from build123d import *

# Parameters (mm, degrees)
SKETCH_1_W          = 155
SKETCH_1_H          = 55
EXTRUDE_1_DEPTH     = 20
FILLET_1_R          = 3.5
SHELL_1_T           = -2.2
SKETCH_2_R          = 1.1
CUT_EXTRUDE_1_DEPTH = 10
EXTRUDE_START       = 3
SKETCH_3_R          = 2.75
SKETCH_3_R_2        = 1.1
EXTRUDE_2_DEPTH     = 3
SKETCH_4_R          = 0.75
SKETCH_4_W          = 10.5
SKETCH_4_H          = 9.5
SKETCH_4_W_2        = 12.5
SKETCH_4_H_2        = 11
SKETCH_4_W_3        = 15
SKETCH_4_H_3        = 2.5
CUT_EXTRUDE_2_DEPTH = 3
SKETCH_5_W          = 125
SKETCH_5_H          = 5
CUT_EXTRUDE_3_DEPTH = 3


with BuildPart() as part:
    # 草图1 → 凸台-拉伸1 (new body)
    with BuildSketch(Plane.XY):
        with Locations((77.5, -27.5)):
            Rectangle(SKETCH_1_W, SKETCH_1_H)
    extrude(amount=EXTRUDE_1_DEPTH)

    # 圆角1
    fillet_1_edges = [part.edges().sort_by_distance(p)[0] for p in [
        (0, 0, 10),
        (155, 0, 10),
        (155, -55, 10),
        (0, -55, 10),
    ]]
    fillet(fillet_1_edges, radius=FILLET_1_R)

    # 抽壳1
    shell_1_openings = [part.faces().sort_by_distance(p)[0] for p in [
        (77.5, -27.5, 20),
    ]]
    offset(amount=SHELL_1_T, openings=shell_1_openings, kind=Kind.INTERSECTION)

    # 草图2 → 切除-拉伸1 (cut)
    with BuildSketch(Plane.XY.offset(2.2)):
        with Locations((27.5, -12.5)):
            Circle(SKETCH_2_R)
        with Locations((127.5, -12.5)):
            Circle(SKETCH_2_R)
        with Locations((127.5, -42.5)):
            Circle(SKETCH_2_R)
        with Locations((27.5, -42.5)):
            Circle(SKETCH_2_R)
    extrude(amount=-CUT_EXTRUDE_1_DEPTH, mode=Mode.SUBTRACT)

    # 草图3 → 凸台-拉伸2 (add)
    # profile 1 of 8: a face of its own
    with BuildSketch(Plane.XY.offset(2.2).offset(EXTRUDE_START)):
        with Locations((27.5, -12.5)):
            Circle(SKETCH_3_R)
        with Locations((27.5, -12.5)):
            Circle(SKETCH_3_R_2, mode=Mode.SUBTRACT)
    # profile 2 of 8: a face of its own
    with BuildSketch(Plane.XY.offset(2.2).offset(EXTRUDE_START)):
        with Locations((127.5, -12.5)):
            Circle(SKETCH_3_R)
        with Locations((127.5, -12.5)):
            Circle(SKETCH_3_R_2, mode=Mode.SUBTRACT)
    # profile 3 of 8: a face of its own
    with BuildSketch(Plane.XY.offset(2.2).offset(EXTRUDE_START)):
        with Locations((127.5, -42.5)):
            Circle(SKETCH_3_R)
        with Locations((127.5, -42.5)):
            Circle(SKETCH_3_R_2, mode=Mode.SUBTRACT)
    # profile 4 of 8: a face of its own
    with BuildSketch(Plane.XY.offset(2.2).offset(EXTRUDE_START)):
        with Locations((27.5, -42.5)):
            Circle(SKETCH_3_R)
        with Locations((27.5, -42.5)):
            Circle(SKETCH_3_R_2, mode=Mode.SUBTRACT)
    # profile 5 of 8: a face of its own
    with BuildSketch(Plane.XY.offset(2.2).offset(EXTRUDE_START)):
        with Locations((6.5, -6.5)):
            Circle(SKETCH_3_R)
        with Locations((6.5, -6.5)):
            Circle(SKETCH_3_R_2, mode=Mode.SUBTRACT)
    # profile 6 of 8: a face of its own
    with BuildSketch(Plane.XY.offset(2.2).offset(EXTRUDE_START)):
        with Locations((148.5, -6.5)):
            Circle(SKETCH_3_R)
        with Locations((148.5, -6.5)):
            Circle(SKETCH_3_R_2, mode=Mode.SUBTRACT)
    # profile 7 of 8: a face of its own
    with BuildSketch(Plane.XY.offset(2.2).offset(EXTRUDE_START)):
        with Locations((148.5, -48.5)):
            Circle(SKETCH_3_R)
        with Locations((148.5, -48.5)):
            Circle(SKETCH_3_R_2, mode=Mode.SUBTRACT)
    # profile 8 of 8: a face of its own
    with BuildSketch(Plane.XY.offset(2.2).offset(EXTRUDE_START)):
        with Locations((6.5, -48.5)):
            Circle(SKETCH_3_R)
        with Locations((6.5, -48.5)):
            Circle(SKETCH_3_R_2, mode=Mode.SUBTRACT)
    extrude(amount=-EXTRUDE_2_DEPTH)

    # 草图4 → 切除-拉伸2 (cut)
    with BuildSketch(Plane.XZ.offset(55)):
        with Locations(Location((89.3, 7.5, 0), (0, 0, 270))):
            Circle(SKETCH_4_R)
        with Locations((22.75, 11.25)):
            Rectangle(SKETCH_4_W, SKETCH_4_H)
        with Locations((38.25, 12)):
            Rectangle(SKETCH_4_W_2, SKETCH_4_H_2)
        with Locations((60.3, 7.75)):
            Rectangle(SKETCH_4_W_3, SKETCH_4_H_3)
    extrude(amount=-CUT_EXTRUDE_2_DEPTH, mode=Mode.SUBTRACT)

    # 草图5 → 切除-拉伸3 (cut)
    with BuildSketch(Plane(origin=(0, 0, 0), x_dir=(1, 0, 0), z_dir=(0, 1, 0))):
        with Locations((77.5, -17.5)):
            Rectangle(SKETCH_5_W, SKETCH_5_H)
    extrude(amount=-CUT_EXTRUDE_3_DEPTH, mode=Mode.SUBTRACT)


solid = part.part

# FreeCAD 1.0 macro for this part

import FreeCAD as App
import Part
import Sketcher


def edges_at(feature, points):
    """Names of the edges that pass closest to the given points."""
    edges = feature.Shape.Edges
    near = lambda p: min(range(len(edges)), key=lambda i: edges[i].distToShape(Part.Vertex(*p))[0])
    return sorted({f"Edge{near(p) + 1}" for p in points})


def faces_at(feature, points):
    """Names of the faces that lie closest to the given points."""
    faces = feature.Shape.Faces
    near = lambda p: min(range(len(faces)), key=lambda i: faces[i].distToShape(Part.Vertex(*p))[0])
    return sorted({f"Face{near(p) + 1}" for p in points})


def add_polygon(sketch, points):
    """Adds a closed chain of lines whose ends are joined by coincident constraints."""
    first, n = sketch.GeometryCount, len(points)
    for a, b in zip(points, points[1:] + points[:1]):
        sketch.addGeometry(Part.LineSegment(App.Vector(*a, 0), App.Vector(*b, 0)), False)
    for i in range(n):
        sketch.addConstraint(Sketcher.Constraint("Coincident", first + i, 2, first + (i + 1) % n, 1))

doc = App.newDocument("Part")
body = doc.addObject("PartDesign::Body", "Body")

# Sketch on XY plane
sketch1 = body.newObject("Sketcher::SketchObject", "Sketch")
sketch1.AttachmentSupport = (doc.getObject("XY_Plane"), [""])
sketch1.MapMode = "FlatFace"
add_polygon(sketch1, [(0, 0), (0, -55), (155, -55), (155, 0)])  # lines 0-3
sketch1.addConstraint(Sketcher.Constraint("Vertical", 0))
sketch1.addConstraint(Sketcher.Constraint("Horizontal", 1))
sketch1.addConstraint(Sketcher.Constraint("Vertical", 2))
sketch1.addConstraint(Sketcher.Constraint("Horizontal", 3))
sketch1.addConstraint(Sketcher.Constraint("Coincident", 3, 2, -1, 1))
sketch1.addConstraint(Sketcher.Constraint("DistanceX", 1, 1, 1, 2, 155.0))
sketch1.addConstraint(Sketcher.Constraint("DistanceY", 0, 2, 0, 1, 55.0))
pad1 = body.newObject("PartDesign::Pad", "Pad")
pad1.Profile = sketch1
pad1.Length = 20
doc.recompute()

fillet = body.newObject("PartDesign::Fillet", "Fillet")
fillet.Base = (pad1, edges_at(pad1, [
    (0, 0, 10),
    (155, 0, 10),
    (155, -55, 10),
    (0, -55, 10),
]))
fillet.Radius = 3.5
doc.recompute()

thickness = body.newObject("PartDesign::Thickness", "Thickness")
thickness.Base = (fillet, faces_at(fillet, [(77.5, -27.5, 20)]))
thickness.Value = 2.2
thickness.Reversed = True
thickness.Join = "Intersection"

# Sketch on XY plane
sketch2 = body.newObject("Sketcher::SketchObject", "Sketch001")
sketch2.AttachmentSupport = (doc.getObject("XY_Plane"), [""])
sketch2.MapMode = "FlatFace"
sketch2.AttachmentOffset = App.Placement(App.Vector(0, 0, 2.2), App.Rotation())
sketch2.addGeometry(Part.Circle(App.Vector(27.5, -12.5, 0), App.Vector(0, 0, 1), 1.1), False)
sketch2.addGeometry(Part.Circle(App.Vector(127.5, -12.5, 0), App.Vector(0, 0, 1), 1.1), False)
sketch2.addGeometry(Part.Circle(App.Vector(127.5, -42.5, 0), App.Vector(0, 0, 1), 1.1), False)
sketch2.addGeometry(Part.Circle(App.Vector(27.5, -42.5, 0), App.Vector(0, 0, 1), 1.1), False)
sketch2.addConstraint(Sketcher.Constraint("Equal", 0, 1))
sketch2.addConstraint(Sketcher.Constraint("Equal", 1, 2))
sketch2.addConstraint(Sketcher.Constraint("Equal", 2, 3))
sketch2.addConstraint(Sketcher.Constraint("Horizontal", 0, 3, 1, 3))
sketch2.addConstraint(Sketcher.Constraint("Horizontal", 2, 3, 3, 3))
sketch2.addConstraint(Sketcher.Constraint("Vertical", 1, 3, 2, 3))
sketch2.addConstraint(Sketcher.Constraint("Vertical", 0, 3, 3, 3))
sketch2.addConstraint(Sketcher.Constraint("Diameter", 0, 2.2))
sketch2.addConstraint(Sketcher.Constraint("DistanceX", 0, 3, 1, 3, 100.0))
sketch2.addConstraint(Sketcher.Constraint("DistanceY", 2, 3, 1, 3, 30.0))
sketch2.addConstraint(Sketcher.Constraint("DistanceX", -1, 1, 0, 3, 27.5))
sketch2.addConstraint(Sketcher.Constraint("DistanceY", 0, 3, -1, 1, 12.5))
pocket1 = body.newObject("PartDesign::Pocket", "Pocket")
pocket1.Profile = sketch2
pocket1.Length = 10

# Sketch on XY plane
sketch3 = body.newObject("Sketcher::SketchObject", "Sketch002")
sketch3.AttachmentSupport = (doc.getObject("XY_Plane"), [""])
sketch3.MapMode = "FlatFace"
sketch3.AttachmentOffset = App.Placement(App.Vector(0, 0, 5.2), App.Rotation())
sketch3.addGeometry(Part.Circle(App.Vector(27.5, -12.5, 0), App.Vector(0, 0, 1), 2.75), False)
sketch3.addGeometry(Part.Circle(App.Vector(27.5, -12.5, 0), App.Vector(0, 0, 1), 1.1), False)
sketch3.addGeometry(Part.Circle(App.Vector(127.5, -12.5, 0), App.Vector(0, 0, 1), 2.75), False)
sketch3.addGeometry(Part.Circle(App.Vector(127.5, -12.5, 0), App.Vector(0, 0, 1), 1.1), False)
sketch3.addGeometry(Part.Circle(App.Vector(127.5, -42.5, 0), App.Vector(0, 0, 1), 2.75), False)
sketch3.addGeometry(Part.Circle(App.Vector(127.5, -42.5, 0), App.Vector(0, 0, 1), 1.1), False)
sketch3.addGeometry(Part.Circle(App.Vector(27.5, -42.5, 0), App.Vector(0, 0, 1), 2.75), False)
sketch3.addGeometry(Part.Circle(App.Vector(27.5, -42.5, 0), App.Vector(0, 0, 1), 1.1), False)
sketch3.addGeometry(Part.Circle(App.Vector(6.5, -6.5, 0), App.Vector(0, 0, 1), 2.75), False)
sketch3.addGeometry(Part.Circle(App.Vector(6.5, -6.5, 0), App.Vector(0, 0, 1), 1.1), False)
sketch3.addGeometry(Part.Circle(App.Vector(148.5, -6.5, 0), App.Vector(0, 0, 1), 2.75), False)
sketch3.addGeometry(Part.Circle(App.Vector(148.5, -6.5, 0), App.Vector(0, 0, 1), 1.1), False)
sketch3.addGeometry(Part.Circle(App.Vector(148.5, -48.5, 0), App.Vector(0, 0, 1), 2.75), False)
sketch3.addGeometry(Part.Circle(App.Vector(148.5, -48.5, 0), App.Vector(0, 0, 1), 1.1), False)
sketch3.addGeometry(Part.Circle(App.Vector(6.5, -48.5, 0), App.Vector(0, 0, 1), 2.75), False)
sketch3.addGeometry(Part.Circle(App.Vector(6.5, -48.5, 0), App.Vector(0, 0, 1), 1.1), False)
sketch3.addConstraint(Sketcher.Constraint("Coincident", 1, 3, 0, 3))
sketch3.addConstraint(Sketcher.Constraint("Coincident", 3, 3, 2, 3))
sketch3.addConstraint(Sketcher.Constraint("Coincident", 5, 3, 4, 3))
sketch3.addConstraint(Sketcher.Constraint("Coincident", 7, 3, 6, 3))
sketch3.addConstraint(Sketcher.Constraint("Coincident", 9, 3, 8, 3))
sketch3.addConstraint(Sketcher.Constraint("Coincident", 11, 3, 10, 3))
sketch3.addConstraint(Sketcher.Constraint("Coincident", 13, 3, 12, 3))
sketch3.addConstraint(Sketcher.Constraint("Coincident", 15, 3, 14, 3))
sketch3.addConstraint(Sketcher.Constraint("Equal", 0, 2))
sketch3.addConstraint(Sketcher.Constraint("Equal", 1, 3))
sketch3.addConstraint(Sketcher.Constraint("Equal", 2, 4))
sketch3.addConstraint(Sketcher.Constraint("Equal", 3, 5))
sketch3.addConstraint(Sketcher.Constraint("Equal", 4, 6))
sketch3.addConstraint(Sketcher.Constraint("Equal", 5, 7))
sketch3.addConstraint(Sketcher.Constraint("Equal", 6, 8))
sketch3.addConstraint(Sketcher.Constraint("Equal", 7, 9))
sketch3.addConstraint(Sketcher.Constraint("Equal", 8, 10))
sketch3.addConstraint(Sketcher.Constraint("Equal", 9, 11))
sketch3.addConstraint(Sketcher.Constraint("Equal", 10, 12))
sketch3.addConstraint(Sketcher.Constraint("Equal", 11, 13))
sketch3.addConstraint(Sketcher.Constraint("Equal", 12, 14))
sketch3.addConstraint(Sketcher.Constraint("Equal", 13, 15))
sketch3.addConstraint(Sketcher.Constraint("Horizontal", 1, 3, 2, 3))
sketch3.addConstraint(Sketcher.Constraint("Horizontal", 5, 3, 6, 3))
sketch3.addConstraint(Sketcher.Constraint("Horizontal", 9, 3, 10, 3))
sketch3.addConstraint(Sketcher.Constraint("Horizontal", 13, 3, 14, 3))
sketch3.addConstraint(Sketcher.Constraint("Vertical", 3, 3, 4, 3))
sketch3.addConstraint(Sketcher.Constraint("Vertical", 1, 3, 6, 3))
sketch3.addConstraint(Sketcher.Constraint("Vertical", 11, 3, 12, 3))
sketch3.addConstraint(Sketcher.Constraint("Vertical", 9, 3, 14, 3))
sketch3.addConstraint(Sketcher.Constraint("Diameter", 0, 5.5))
sketch3.addConstraint(Sketcher.Constraint("Diameter", 1, 2.2))
sketch3.addConstraint(Sketcher.Constraint("DistanceX", 0, 3, 2, 3, 100.0))
sketch3.addConstraint(Sketcher.Constraint("DistanceY", 4, 3, 2, 3, 30.0))
sketch3.addConstraint(Sketcher.Constraint("DistanceX", 8, 3, 0, 3, 21.0))
sketch3.addConstraint(Sketcher.Constraint("DistanceY", 0, 3, 8, 3, 6.0))
sketch3.addConstraint(Sketcher.Constraint("DistanceX", 2, 3, 10, 3, 21.0))
sketch3.addConstraint(Sketcher.Constraint("DistanceY", 12, 3, 4, 3, 6.0))
sketch3.addConstraint(Sketcher.Constraint("DistanceX", -1, 1, 0, 3, 27.5))
sketch3.addConstraint(Sketcher.Constraint("DistanceY", 0, 3, -1, 1, 12.5))
pad2 = body.newObject("PartDesign::Pad", "Pad001")
pad2.Profile = sketch3
pad2.Length = 3
pad2.Reversed = True

# Sketch on XZ plane
sketch4 = body.newObject("Sketcher::SketchObject", "Sketch003")
sketch4.AttachmentSupport = (doc.getObject("XZ_Plane"), [""])
sketch4.MapMode = "FlatFace"
sketch4.AttachmentOffset = App.Placement(App.Vector(0, 0, 55), App.Rotation())
sketch4.addGeometry(Part.Circle(App.Vector(89.3, 7.5, 0), App.Vector(0, 0, 1), 0.75), False)  # 0
add_polygon(sketch4, [(17.5, 16), (17.5, 6.5), (28, 6.5), (28, 16)])  # lines 1-4
add_polygon(sketch4, [(32, 17.5), (32, 6.5), (44.5, 6.5), (44.5, 17.5)])  # lines 5-8
add_polygon(sketch4, [(52.8, 9), (52.8, 6.5), (67.8, 6.5), (67.8, 9)])  # lines 9-12
sketch4.addConstraint(Sketcher.Constraint("Vertical", 1))
sketch4.addConstraint(Sketcher.Constraint("Horizontal", 2))
sketch4.addConstraint(Sketcher.Constraint("Vertical", 3))
sketch4.addConstraint(Sketcher.Constraint("Horizontal", 4))
sketch4.addConstraint(Sketcher.Constraint("Vertical", 5))
sketch4.addConstraint(Sketcher.Constraint("Horizontal", 6))
sketch4.addConstraint(Sketcher.Constraint("Vertical", 7))
sketch4.addConstraint(Sketcher.Constraint("Horizontal", 8))
sketch4.addConstraint(Sketcher.Constraint("Vertical", 9))
sketch4.addConstraint(Sketcher.Constraint("Horizontal", 10))
sketch4.addConstraint(Sketcher.Constraint("Vertical", 11))
sketch4.addConstraint(Sketcher.Constraint("Horizontal", 12))
sketch4.addConstraint(Sketcher.Constraint("Horizontal", 2, 2, 5, 2))
sketch4.addConstraint(Sketcher.Constraint("Horizontal", 6, 2, 9, 2))
sketch4.addConstraint(Sketcher.Constraint("Diameter", 0, 1.5))
sketch4.addConstraint(Sketcher.Constraint("DistanceX", 10, 1, 10, 2, 15.0))
sketch4.addConstraint(Sketcher.Constraint("DistanceY", 5, 2, 5, 1, 11.0))
sketch4.addConstraint(Sketcher.Constraint("DistanceX", 2, 1, 2, 2, 10.5))
sketch4.addConstraint(Sketcher.Constraint("DistanceX", 6, 1, 6, 2, 12.5))
sketch4.addConstraint(Sketcher.Constraint("DistanceY", 1, 2, 1, 1, 9.5))
sketch4.addConstraint(Sketcher.Constraint("DistanceY", 9, 2, 9, 1, 2.5))
sketch4.addConstraint(Sketcher.Constraint("DistanceX", -1, 1, 2, 2, 28.0))
sketch4.addConstraint(Sketcher.Constraint("DistanceY", -1, 1, 3, 2, 16.0))
sketch4.addConstraint(Sketcher.Constraint("DistanceX", -1, 1, 5, 2, 32.0))
sketch4.addConstraint(Sketcher.Constraint("DistanceY", 1, 2, 0, 3, 1.0))
sketch4.addConstraint(Sketcher.Constraint("DistanceX", -1, 1, 0, 3, 89.3))
sketch4.addConstraint(Sketcher.Constraint("DistanceX", -1, 1, 9, 2, 52.8))
pocket2 = body.newObject("PartDesign::Pocket", "Pocket001")
pocket2.Profile = sketch4
pocket2.Length = 3

# Sketch on XZ plane
sketch5 = body.newObject("Sketcher::SketchObject", "Sketch004")
sketch5.AttachmentSupport = (doc.getObject("XZ_Plane"), [""])
sketch5.MapMode = "FlatFace"
add_polygon(sketch5, [(15, 15), (15, 20), (140, 20), (140, 15)])  # lines 0-3
sketch5.addConstraint(Sketcher.Constraint("Vertical", 0))
sketch5.addConstraint(Sketcher.Constraint("Horizontal", 1))
sketch5.addConstraint(Sketcher.Constraint("Vertical", 2))
sketch5.addConstraint(Sketcher.Constraint("Horizontal", 3))
sketch5.addConstraint(Sketcher.Constraint("DistanceX", 1, 1, 1, 2, 125.0))
sketch5.addConstraint(Sketcher.Constraint("DistanceY", 0, 1, 0, 2, 5.0))
sketch5.addConstraint(Sketcher.Constraint("DistanceX", -1, 1, 0, 2, 15.0))
sketch5.addConstraint(Sketcher.Constraint("DistanceY", -1, 1, 0, 2, 20.0))
pocket3 = body.newObject("PartDesign::Pocket", "Pocket002")
pocket3.Profile = sketch5
pocket3.Length = 3
pocket3.Reversed = True

doc.recompute()
